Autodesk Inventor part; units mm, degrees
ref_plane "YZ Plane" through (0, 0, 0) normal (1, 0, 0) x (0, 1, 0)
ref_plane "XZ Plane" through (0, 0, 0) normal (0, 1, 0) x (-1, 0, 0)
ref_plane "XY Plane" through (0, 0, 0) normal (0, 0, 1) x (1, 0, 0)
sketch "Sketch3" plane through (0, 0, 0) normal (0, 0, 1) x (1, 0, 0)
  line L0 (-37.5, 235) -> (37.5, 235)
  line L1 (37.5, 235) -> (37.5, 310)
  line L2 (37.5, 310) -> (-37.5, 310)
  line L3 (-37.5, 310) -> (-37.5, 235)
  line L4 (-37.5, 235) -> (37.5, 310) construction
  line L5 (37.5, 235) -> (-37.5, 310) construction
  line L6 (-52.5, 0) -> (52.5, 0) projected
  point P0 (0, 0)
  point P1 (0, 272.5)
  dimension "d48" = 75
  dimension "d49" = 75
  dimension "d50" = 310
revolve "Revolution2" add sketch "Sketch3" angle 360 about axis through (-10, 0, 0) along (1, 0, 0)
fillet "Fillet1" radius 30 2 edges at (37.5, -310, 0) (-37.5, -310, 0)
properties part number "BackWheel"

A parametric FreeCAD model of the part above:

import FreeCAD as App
import Part
import Sketcher

V = App.Vector
Q = App.Units.Quantity


def edges_at(feature, points):
    """Names of the edges that pass closest to the given points."""
    edges = feature.Shape.Edges
    near = lambda p: min(range(len(edges)), key=lambda i: edges[i].distToShape(Part.Vertex(*p))[0])
    return sorted({f"Edge{near(p) + 1}" for p in points})


def add_polygon(sketch, points):
    """Adds a closed chain of lines whose ends are joined by coincident constraints."""
    first, n = sketch.GeometryCount, len(points)
    for a, b in zip(points, points[1:] + points[:1]):
        sketch.addGeometry(Part.LineSegment(App.Vector(*a, 0), App.Vector(*b, 0)), False)
    for i in range(n):
        sketch.addConstraint(Sketcher.Constraint("Coincident", first + i, 2, first + (i + 1) % n, 1))

doc = App.newDocument("Part")
body = doc.addObject("PartDesign::Body", "Body")

sketch1 = doc.addObject("Sketcher::SketchObject", "Sketch")
body.addObject(sketch1)
sketch1.AttachmentSupport = (doc.XY_Plane, [""])
sketch1.MapMode = "FlatFace"
add_polygon(sketch1, [(-38, 310), (-38, 235), (38, 235), (38, 310)])
sketch1.addConstraint([
    Sketcher.Constraint("Vertical", 0),
    Sketcher.Constraint("Horizontal", 1),
    Sketcher.Constraint("Vertical", 2),
    Sketcher.Constraint("Horizontal", 3),
    Sketcher.Constraint("Equal", 3, 0),
    Sketcher.Constraint("DistanceX", 1, 1, 1, 2, Q("75 mm")),
    Sketcher.Constraint("DistanceY", -1, 1, 2, 2, Q("310 mm")),
    Sketcher.Constraint("DistanceX", 0, 2, -1, 1, Q("37.5 mm")),
])
revolution = doc.addObject("PartDesign::Revolution", "Revolution")
body.addObject(revolution)
revolution.Profile = sketch1
revolution.ReferenceAxis = (sketch1, ["H_Axis"])
revolution.Angle = 360
doc.recompute()

fillet = doc.addObject("PartDesign::Fillet", "Fillet")
body.addObject(fillet)
fillet.Base = (revolution, edges_at(revolution, [(37.5, -310, 0), (-37.5, -310, 0)]))
fillet.Radius = 30

doc.recompute()
